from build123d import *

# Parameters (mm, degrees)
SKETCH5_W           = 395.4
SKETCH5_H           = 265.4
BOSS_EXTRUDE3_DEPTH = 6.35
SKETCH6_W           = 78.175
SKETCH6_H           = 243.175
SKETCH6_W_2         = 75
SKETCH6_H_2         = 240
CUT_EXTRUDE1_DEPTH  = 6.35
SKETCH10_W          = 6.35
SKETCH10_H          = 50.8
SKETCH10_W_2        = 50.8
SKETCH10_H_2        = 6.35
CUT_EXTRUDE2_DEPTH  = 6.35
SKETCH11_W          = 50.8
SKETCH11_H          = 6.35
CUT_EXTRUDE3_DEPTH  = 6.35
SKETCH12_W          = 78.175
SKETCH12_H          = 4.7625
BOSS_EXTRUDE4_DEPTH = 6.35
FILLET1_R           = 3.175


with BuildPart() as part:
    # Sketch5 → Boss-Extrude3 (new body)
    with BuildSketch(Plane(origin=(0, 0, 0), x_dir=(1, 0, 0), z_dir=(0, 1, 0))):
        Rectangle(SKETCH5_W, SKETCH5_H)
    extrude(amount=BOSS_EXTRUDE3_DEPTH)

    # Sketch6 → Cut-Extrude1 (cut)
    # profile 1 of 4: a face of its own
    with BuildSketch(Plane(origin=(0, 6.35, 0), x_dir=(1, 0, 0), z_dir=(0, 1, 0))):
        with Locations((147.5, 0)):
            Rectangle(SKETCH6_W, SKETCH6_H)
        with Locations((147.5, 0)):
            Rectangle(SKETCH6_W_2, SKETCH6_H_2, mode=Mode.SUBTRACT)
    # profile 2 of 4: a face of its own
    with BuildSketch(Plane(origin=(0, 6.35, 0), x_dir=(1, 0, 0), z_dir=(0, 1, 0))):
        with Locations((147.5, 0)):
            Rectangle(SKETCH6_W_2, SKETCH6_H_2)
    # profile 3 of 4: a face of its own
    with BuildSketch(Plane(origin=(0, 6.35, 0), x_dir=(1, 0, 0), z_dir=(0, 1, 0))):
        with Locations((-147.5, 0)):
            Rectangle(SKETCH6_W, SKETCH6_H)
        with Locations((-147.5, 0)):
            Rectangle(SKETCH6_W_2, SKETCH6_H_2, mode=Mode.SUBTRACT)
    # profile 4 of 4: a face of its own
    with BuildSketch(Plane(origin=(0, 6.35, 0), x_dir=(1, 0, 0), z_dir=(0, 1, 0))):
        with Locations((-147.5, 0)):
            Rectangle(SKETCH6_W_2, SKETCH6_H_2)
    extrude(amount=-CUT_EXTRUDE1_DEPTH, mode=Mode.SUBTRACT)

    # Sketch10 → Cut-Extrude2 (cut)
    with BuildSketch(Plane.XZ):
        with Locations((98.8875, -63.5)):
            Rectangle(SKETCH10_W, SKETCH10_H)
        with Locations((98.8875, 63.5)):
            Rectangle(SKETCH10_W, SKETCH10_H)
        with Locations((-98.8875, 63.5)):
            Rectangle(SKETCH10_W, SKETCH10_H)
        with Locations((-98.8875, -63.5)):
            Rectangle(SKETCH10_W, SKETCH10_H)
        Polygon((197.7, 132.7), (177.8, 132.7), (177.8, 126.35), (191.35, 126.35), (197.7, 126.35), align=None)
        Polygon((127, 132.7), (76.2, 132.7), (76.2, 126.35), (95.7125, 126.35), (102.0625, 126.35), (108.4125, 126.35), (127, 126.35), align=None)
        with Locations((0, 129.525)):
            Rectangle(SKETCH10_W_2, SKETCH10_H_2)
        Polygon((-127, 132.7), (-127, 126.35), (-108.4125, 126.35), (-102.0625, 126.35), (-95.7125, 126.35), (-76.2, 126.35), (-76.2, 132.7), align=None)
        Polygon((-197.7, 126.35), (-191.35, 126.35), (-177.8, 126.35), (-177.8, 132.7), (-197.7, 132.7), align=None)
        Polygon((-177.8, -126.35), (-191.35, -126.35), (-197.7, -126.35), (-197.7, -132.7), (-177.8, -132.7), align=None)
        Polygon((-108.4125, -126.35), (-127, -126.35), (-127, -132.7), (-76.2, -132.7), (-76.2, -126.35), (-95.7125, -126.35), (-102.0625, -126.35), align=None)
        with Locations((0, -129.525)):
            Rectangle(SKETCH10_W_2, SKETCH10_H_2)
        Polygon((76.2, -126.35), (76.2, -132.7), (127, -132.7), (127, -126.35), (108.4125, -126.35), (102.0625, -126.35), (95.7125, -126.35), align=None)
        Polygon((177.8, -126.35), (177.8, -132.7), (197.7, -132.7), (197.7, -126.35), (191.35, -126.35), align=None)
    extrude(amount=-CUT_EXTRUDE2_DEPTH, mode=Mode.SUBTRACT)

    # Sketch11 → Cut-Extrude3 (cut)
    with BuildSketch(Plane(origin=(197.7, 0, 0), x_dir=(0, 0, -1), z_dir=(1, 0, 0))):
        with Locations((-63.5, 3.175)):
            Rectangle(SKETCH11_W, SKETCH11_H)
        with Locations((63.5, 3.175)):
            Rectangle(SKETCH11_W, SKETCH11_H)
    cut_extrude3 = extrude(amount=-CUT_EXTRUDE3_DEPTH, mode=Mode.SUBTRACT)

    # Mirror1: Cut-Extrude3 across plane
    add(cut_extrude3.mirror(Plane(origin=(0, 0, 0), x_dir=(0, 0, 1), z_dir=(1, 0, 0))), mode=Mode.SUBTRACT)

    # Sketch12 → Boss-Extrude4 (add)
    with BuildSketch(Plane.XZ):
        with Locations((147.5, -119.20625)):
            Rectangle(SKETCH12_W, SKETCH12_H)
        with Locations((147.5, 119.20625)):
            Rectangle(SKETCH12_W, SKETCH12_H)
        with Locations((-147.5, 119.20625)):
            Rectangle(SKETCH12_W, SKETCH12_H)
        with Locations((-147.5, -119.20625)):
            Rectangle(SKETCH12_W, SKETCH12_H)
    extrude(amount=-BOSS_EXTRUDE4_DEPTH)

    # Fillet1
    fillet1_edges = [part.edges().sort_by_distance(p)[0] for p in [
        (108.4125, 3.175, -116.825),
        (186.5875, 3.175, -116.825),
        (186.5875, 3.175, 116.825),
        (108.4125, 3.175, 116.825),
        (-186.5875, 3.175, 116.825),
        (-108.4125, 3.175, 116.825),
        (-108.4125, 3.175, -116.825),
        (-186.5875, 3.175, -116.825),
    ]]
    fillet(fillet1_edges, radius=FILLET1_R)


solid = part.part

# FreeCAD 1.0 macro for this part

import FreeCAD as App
import Part
import Sketcher

V = App.Vector
Q = App.Units.Quantity


def edges_at(feature, points):
    """Names of the edges that pass closest to the given points."""
    edges = feature.Shape.Edges
    near = lambda p: min(range(len(edges)), key=lambda i: edges[i].distToShape(Part.Vertex(*p))[0])
    return sorted({f"Edge{near(p) + 1}" for p in points})


def add_polygon(sketch, points):
    """Adds a closed chain of lines whose ends are joined by coincident constraints."""
    first, n = sketch.GeometryCount, len(points)
    for a, b in zip(points, points[1:] + points[:1]):
        sketch.addGeometry(Part.LineSegment(App.Vector(*a, 0), App.Vector(*b, 0)), False)
    for i in range(n):
        sketch.addConstraint(Sketcher.Constraint("Coincident", first + i, 2, first + (i + 1) % n, 1))

doc = App.newDocument("Part")
body = doc.addObject("PartDesign::Body", "Body")

sketch1 = doc.addObject("Sketcher::SketchObject", "Sketch")
body.addObject(sketch1)
sketch1.AttachmentSupport = (doc.XZ_Plane, [""])
sketch1.MapMode = "FlatFace"
add_polygon(sketch1, [(-197.7, -132.7), (-197.7, 132.7), (197.7, 132.7), (197.7, -132.7)])
sketch1.addConstraint([
    Sketcher.Constraint("Vertical", 0),
    Sketcher.Constraint("Horizontal", 1),
    Sketcher.Constraint("Vertical", 2),
    Sketcher.Constraint("Horizontal", 3),
    Sketcher.Constraint("Symmetric", 0, 2, 2, 2, -1, 1),
    Sketcher.Constraint("DistanceX", 1, 1, 1, 2, Q("395.4 mm")),
    Sketcher.Constraint("DistanceY", 0, 1, 0, 2, Q("265.4 mm")),
])
pad1 = doc.addObject("PartDesign::Pad", "Pad")
body.addObject(pad1)
pad1.Profile = sketch1
pad1.Length = Q("0.25 in")
pad1.Reversed = True

sketch2 = doc.addObject("Sketcher::SketchObject", "Sketch001")
body.addObject(sketch2)
sketch2.AttachmentSupport = (doc.XZ_Plane, [""])
sketch2.MapMode = "FlatFace"
sketch2.AttachmentOffset = App.Placement(V(0, 0, -0.25 * 25.4), App.Rotation())
add_polygon(sketch2, [(108.4125, -121.5875), (108.4125, 121.5875), (186.5875, 121.5875), (186.5875, -121.5875)])
add_polygon(sketch2, [(-186.5875, -121.5875), (-186.5875, 121.5875), (-108.4125, 121.5875), (-108.4125, -121.5875)])
sketch2.addConstraint([
    Sketcher.Constraint("Vertical", 0),
    Sketcher.Constraint("Horizontal", 1),
    Sketcher.Constraint("Vertical", 2),
    Sketcher.Constraint("Horizontal", 3),
    Sketcher.Constraint("Vertical", 4),
    Sketcher.Constraint("Horizontal", 5),
    Sketcher.Constraint("Vertical", 6),
    Sketcher.Constraint("Horizontal", 7),
    Sketcher.Constraint("Symmetric", 2, 2, 4, 2, -1, 1),
    Sketcher.Constraint("Symmetric", 0, 2, 6, 2, -1, 1),
    Sketcher.Constraint("Horizontal", 1, 2, 4, 2),
    Sketcher.Constraint("DistanceX", 1, 1, 1, 2, Q("78.175 mm")),
    Sketcher.Constraint("DistanceY", 0, 1, 0, 2, Q("243.175 mm")),
    Sketcher.Constraint("DistanceX", -1, 1, 0, 2, Q("108.4125 mm")),
])
pocket1 = doc.addObject("PartDesign::Pocket", "Pocket")
body.addObject(pocket1)
pocket1.Profile = sketch2
pocket1.Length = Q("0.25 in")
pocket1.Reversed = True

sketch3 = doc.addObject("Sketcher::SketchObject", "Sketch002")
body.addObject(sketch3)
sketch3.AttachmentSupport = (doc.XZ_Plane, [""])
sketch3.MapMode = "FlatFace"
add_polygon(sketch3, [(95.7125, -38.1), (95.7125, -88.9), (102.0625, -88.9), (102.0625, -38.1)])
add_polygon(sketch3, [(95.7125, 88.9), (95.7125, 38.1), (102.0625, 38.1), (102.0625, 88.9)])
add_polygon(sketch3, [(-102.0625, 88.9), (-102.0625, 38.1), (-95.7125, 38.1), (-95.7125, 88.9)])
add_polygon(sketch3, [(-102.0625, -38.1), (-102.0625, -88.9), (-95.7125, -88.9), (-95.7125, -38.1)])
add_polygon(sketch3, [(197.7, 132.7), (177.8, 132.7), (177.8, 126.35), (197.7, 126.35)])
add_polygon(sketch3, [(127, 132.7), (76.2, 132.7), (76.2, 126.35), (127, 126.35)])
add_polygon(sketch3, [(-25.4, 132.7), (-25.4, 126.35), (25.4, 126.35), (25.4, 132.7)])
add_polygon(sketch3, [(-127, 132.7), (-127, 126.35), (-76.2, 126.35), (-76.2, 132.7)])
add_polygon(sketch3, [(-197.7, 126.35), (-177.8, 126.35), (-177.8, 132.7), (-197.7, 132.7)])
add_polygon(sketch3, [(-177.8, -126.35), (-197.7, -126.35), (-197.7, -132.7), (-177.8, -132.7)])
add_polygon(sketch3, [(-127, -126.35), (-127, -132.7), (-76.2, -132.7), (-76.2, -126.35)])
add_polygon(sketch3, [(-25.4, -126.35), (-25.4, -132.7), (25.4, -132.7), (25.4, -126.35)])
add_polygon(sketch3, [(76.2, -126.35), (76.2, -132.7), (127, -132.7), (127, -126.35)])
add_polygon(sketch3, [(177.8, -126.35), (177.8, -132.7), (197.7, -132.7), (197.7, -126.35)])
sketch3.addConstraint([
    Sketcher.Constraint("Vertical", 0),
    Sketcher.Constraint("Horizontal", 1),
    Sketcher.Constraint("Vertical", 2),
    Sketcher.Constraint("Horizontal", 3),
    Sketcher.Constraint("Vertical", 4),
    Sketcher.Constraint("Horizontal", 5),
    Sketcher.Constraint("Vertical", 6),
    Sketcher.Constraint("Horizontal", 7),
    Sketcher.Constraint("Vertical", 8),
    Sketcher.Constraint("Horizontal", 9),
    Sketcher.Constraint("Vertical", 10),
    Sketcher.Constraint("Horizontal", 11),
    Sketcher.Constraint("Vertical", 12),
    Sketcher.Constraint("Horizontal", 13),
    Sketcher.Constraint("Vertical", 14),
    Sketcher.Constraint("Horizontal", 15),
    Sketcher.Constraint("Horizontal", 16),
    Sketcher.Constraint("Vertical", 17),
    Sketcher.Constraint("Horizontal", 18),
    Sketcher.Constraint("Vertical", 19),
    Sketcher.Constraint("Horizontal", 20),
    Sketcher.Constraint("Vertical", 21),
    Sketcher.Constraint("Horizontal", 22),
    Sketcher.Constraint("Vertical", 23),
    Sketcher.Constraint("Vertical", 24),
    Sketcher.Constraint("Horizontal", 25),
    Sketcher.Constraint("Vertical", 26),
    Sketcher.Constraint("Horizontal", 27),
    Sketcher.Constraint("Vertical", 28),
    Sketcher.Constraint("Horizontal", 29),
    Sketcher.Constraint("Vertical", 30),
    Sketcher.Constraint("Horizontal", 31),
    Sketcher.Constraint("Horizontal", 32),
    Sketcher.Constraint("Vertical", 33),
    Sketcher.Constraint("Horizontal", 34),
    Sketcher.Constraint("Vertical", 35),
    Sketcher.Constraint("Horizontal", 36),
    Sketcher.Constraint("Vertical", 37),
    Sketcher.Constraint("Horizontal", 38),
    Sketcher.Constraint("Vertical", 39),
    Sketcher.Constraint("Vertical", 40),
    Sketcher.Constraint("Horizontal", 41),
    Sketcher.Constraint("Vertical", 42),
    Sketcher.Constraint("Horizontal", 43),
    Sketcher.Constraint("Vertical", 44),
    Sketcher.Constraint("Horizontal", 45),
    Sketcher.Constraint("Vertical", 46),
    Sketcher.Constraint("Horizontal", 47),
    Sketcher.Constraint("Vertical", 48),
    Sketcher.Constraint("Horizontal", 49),
    Sketcher.Constraint("Vertical", 50),
    Sketcher.Constraint("Horizontal", 51),
    Sketcher.Constraint("Vertical", 52),
    Sketcher.Constraint("Horizontal", 53),
    Sketcher.Constraint("Vertical", 54),
    Sketcher.Constraint("Horizontal", 55),
    Sketcher.Constraint("Symmetric", 2, 2, 8, 2, -1, 1),
    Sketcher.Constraint("Symmetric", 0, 2, 10, 2, -1, 1),
    Sketcher.Constraint("Symmetric", 6, 2, 12, 2, -1, 1),
    Sketcher.Constraint("Symmetric", 4, 2, 14, 2, -1, 1),
    Sketcher.Constraint("Symmetric", 18, 2, 36, 2, -1, 1),
    Sketcher.Constraint("Symmetric", 16, 2, 38, 2, -1, 1),
    Sketcher.Constraint("Symmetric", 23, 2, 40, 2, -1, 1),
    Sketcher.Constraint("Symmetric", 21, 2, 42, 2, -1, 1),
    Sketcher.Constraint("Symmetric", 26, 2, 44, 2, -1, 1),
    Sketcher.Constraint("Symmetric", 24, 2, 46, 2, -1, 1),
    Sketcher.Constraint("Symmetric", 30, 2, 48, 2, -1, 1),
    Sketcher.Constraint("Symmetric", 28, 2, 50, 2, -1, 1),
    Sketcher.Constraint("Symmetric", 33, 2, 52, 2, -1, 1),
    Sketcher.Constraint("Symmetric", 35, 2, 54, 2, -1, 1),
    Sketcher.Constraint("Symmetric", 5, 2, 8, 2, -2),
    Sketcher.Constraint("Symmetric", 7, 2, 10, 2, -2),
    Sketcher.Constraint("Symmetric", 22, 2, 28, 2, -2),
    Sketcher.Constraint("Symmetric", 20, 2, 30, 2, -2),
    Sketcher.Constraint("Symmetric", 17, 2, 32, 2, -2),
    Sketcher.Constraint("Symmetric", 19, 2, 34, 2, -2),
    Sketcher.Constraint("Horizontal", 19, 2, 20, 2),
    Sketcher.Constraint("Horizontal", 18, 2, 21, 2),
    Sketcher.Constraint("Horizontal", 22, 2, 24, 2),
    Sketcher.Constraint("Horizontal", 23, 2, 26, 2),
    Sketcher.Constraint("Vertical", 27, 2, 44, 2),
    Sketcher.Constraint("Equal", 22, 25),
    Sketcher.Constraint("Equal", 51, 0),
    Sketcher.Constraint("Equal", 15, 17),
    Sketcher.Constraint("DistanceX", 20, 2, 20, 1, Q("2 in")),
    Sketcher.Constraint("DistanceX", -1, 1, 16, 2, Q("7 in")),
    Sketcher.Constraint("DistanceX", -1, 1, 20, 2, Q("3 in")),
    Sketcher.Constraint("DistanceY", 3, 2, 4, 2, Q("3 in")),
    Sketcher.Constraint("DistanceX", 1, 1, 1, 2, Q("0.25 in")),
    Sketcher.Constraint("DistanceX", 16, 2, 16, 1, Q("19.9 mm")),
    Sketcher.Constraint("DistanceX", -1, 1, 0, 2, Q("95.7125 mm")),
    Sketcher.Constraint("DistanceY", -1, 1, 16, 2, Q("132.7 mm")),
])
pocket2 = doc.addObject("PartDesign::Pocket", "Pocket001")
body.addObject(pocket2)
pocket2.Profile = sketch3
pocket2.Length = Q("0.25 in")

sketch4 = doc.addObject("Sketcher::SketchObject", "Sketch003")
body.addObject(sketch4)
sketch4.AttachmentSupport = (doc.YZ_Plane, [""])
sketch4.MapMode = "FlatFace"
sketch4.AttachmentOffset = App.Placement(V(0, 0, 197.7), App.Rotation())
add_polygon(sketch4, [(6.35, 88.9), (0, 88.9), (0, 38.1), (6.35, 38.1)])
add_polygon(sketch4, [(6.35, -38.1), (0, -38.1), (0, -88.9), (6.35, -88.9)])
sketch4.addConstraint([
    Sketcher.Constraint("Horizontal", 0),
    Sketcher.Constraint("Vertical", 1),
    Sketcher.Constraint("Horizontal", 2),
    Sketcher.Constraint("Vertical", 3),
    Sketcher.Constraint("Horizontal", 4),
    Sketcher.Constraint("Vertical", 5),
    Sketcher.Constraint("Horizontal", 6),
    Sketcher.Constraint("Vertical", 7),
    Sketcher.Constraint("Symmetric", 1, 2, 4, 2, -1, 1),
    Sketcher.Constraint("Symmetric", 0, 2, 5, 2, -1),
    Sketcher.Constraint("Vertical", 3, 2, 6, 2),
    Sketcher.Constraint("DistanceY", 1, 2, 1, 1, Q("2 in")),
    Sketcher.Constraint("DistanceY", 4, 2, 1, 2, Q("3 in")),
    Sketcher.Constraint("DistanceX", 0, 2, 0, 1, Q("0.25 in")),
])
pocket3 = doc.addObject("PartDesign::Pocket", "Pocket002")
body.addObject(pocket3)
pocket3.Profile = sketch4
pocket3.Length = Q("0.25 in")
doc.recompute()

mirrored = doc.addObject("PartDesign::Mirrored", "Mirrored")
body.addObject(mirrored)
mirrored.Originals = [pocket3]
mirrored.MirrorPlane = (doc.YZ_Plane, [""])
body.Tip = mirrored

sketch5 = doc.addObject("Sketcher::SketchObject", "Sketch004")
body.addObject(sketch5)
sketch5.AttachmentSupport = (doc.XZ_Plane, [""])
sketch5.MapMode = "FlatFace"
add_polygon(sketch5, [(108.4125, -116.825), (108.4125, -121.5875), (186.5875, -121.5875), (186.5875, -116.825)])
add_polygon(sketch5, [(108.4125, 121.5875), (108.4125, 116.825), (186.5875, 116.825), (186.5875, 121.5875)])
add_polygon(sketch5, [(-186.5875, 121.5875), (-186.5875, 116.825), (-108.4125, 116.825), (-108.4125, 121.5875)])
add_polygon(sketch5, [(-186.5875, -116.825), (-186.5875, -121.5875), (-108.4125, -121.5875), (-108.4125, -116.825)])
sketch5.addConstraint([
    Sketcher.Constraint("Vertical", 0),
    Sketcher.Constraint("Horizontal", 1),
    Sketcher.Constraint("Vertical", 2),
    Sketcher.Constraint("Horizontal", 3),
    Sketcher.Constraint("Vertical", 4),
    Sketcher.Constraint("Horizontal", 5),
    Sketcher.Constraint("Vertical", 6),
    Sketcher.Constraint("Horizontal", 7),
    Sketcher.Constraint("Vertical", 8),
    Sketcher.Constraint("Horizontal", 9),
    Sketcher.Constraint("Vertical", 10),
    Sketcher.Constraint("Horizontal", 11),
    Sketcher.Constraint("Vertical", 12),
    Sketcher.Constraint("Horizontal", 13),
    Sketcher.Constraint("Vertical", 14),
    Sketcher.Constraint("Horizontal", 15),
    Sketcher.Constraint("Symmetric", 2, 2, 8, 2, -1, 1),
    Sketcher.Constraint("Symmetric", 0, 2, 10, 2, -1, 1),
    Sketcher.Constraint("Symmetric", 6, 2, 12, 2, -1, 1),
    Sketcher.Constraint("Symmetric", 4, 2, 14, 2, -1, 1),
    Sketcher.Constraint("Symmetric", 5, 2, 8, 2, -2),
    Sketcher.Constraint("Symmetric", 7, 2, 10, 2, -2),
    Sketcher.Constraint("DistanceY", 0, 2, 0, 1, Q("0.1875 in")),
    Sketcher.Constraint("DistanceX", 1, 1, 1, 2, Q("78.175 mm")),
    Sketcher.Constraint("DistanceX", -1, 1, 0, 2, Q("108.4125 mm")),
    Sketcher.Constraint("DistanceY", 0, 2, -1, 1, Q("121.5875 mm")),
])
pad2 = doc.addObject("PartDesign::Pad", "Pad001")
body.addObject(pad2)
pad2.Profile = sketch5
pad2.Length = Q("0.25 in")
pad2.Reversed = True
doc.recompute()

fillet = doc.addObject("PartDesign::Fillet", "Fillet")
body.addObject(fillet)
fillet.Base = (pad2, edges_at(pad2, [
    (108.412, 3.175, -116.825),
    (186.588, 3.175, -116.825),
    (186.588, 3.175, 116.825),
    (108.412, 3.175, 116.825),
    (-186.588, 3.175, 116.825),
    (-108.412, 3.175, 116.825),
    (-108.412, 3.175, -116.825),
    (-186.588, 3.175, -116.825),
]))
fillet.Radius = Q("0.125 in")

doc.recompute()
